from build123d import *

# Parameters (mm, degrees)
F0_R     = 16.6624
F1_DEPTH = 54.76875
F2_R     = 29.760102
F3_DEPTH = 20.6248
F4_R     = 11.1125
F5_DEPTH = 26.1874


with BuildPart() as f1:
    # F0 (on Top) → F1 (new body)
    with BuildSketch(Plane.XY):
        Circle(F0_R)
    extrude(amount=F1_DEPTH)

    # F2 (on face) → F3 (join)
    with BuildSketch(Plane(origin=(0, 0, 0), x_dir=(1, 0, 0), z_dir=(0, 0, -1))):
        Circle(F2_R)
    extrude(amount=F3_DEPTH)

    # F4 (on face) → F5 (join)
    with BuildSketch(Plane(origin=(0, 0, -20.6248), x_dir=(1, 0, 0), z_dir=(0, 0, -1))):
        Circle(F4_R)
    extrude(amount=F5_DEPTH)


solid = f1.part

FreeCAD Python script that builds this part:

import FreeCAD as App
import Part
import Sketcher
Q = App.Units.Quantity

doc = App.newDocument("Part")
body = doc.addObject("PartDesign::Body", "Body")

# Sketch on XY plane
sketch1 = doc.addObject("Sketcher::SketchObject", "Sketch")
body.addObject(sketch1)
sketch1.AttachmentSupport = (doc.XY_Plane, [""])
sketch1.MapMode = "FlatFace"
sketch1.addGeometry(Part.Circle(App.Vector(0, 0, 0), App.Vector(0, 0, 1), 17), False)
sketch1.addConstraint([
    Sketcher.Constraint("Coincident", 0, 3, -1, 1),
    Sketcher.Constraint("Diameter", 0, Q("1.312 in")),
])
pad1 = doc.addObject("PartDesign::Pad", "Pad")
body.addObject(pad1)
pad1.Profile = sketch1
pad1.Length = Q("2.15625 in")

# Sketch on XY plane
sketch2 = doc.addObject("Sketcher::SketchObject", "Sketch001")
body.addObject(sketch2)
sketch2.AttachmentSupport = (doc.XY_Plane, [""])
sketch2.MapMode = "FlatFace"
sketch2.addGeometry(Part.Circle(App.Vector(0, 0, 0), App.Vector(0, 0, 1), 30), False)
sketch2.addConstraint([
    Sketcher.Constraint("Coincident", 0, 3, -1, 1),
    Sketcher.Constraint("Diameter", 0, 59.520204),
])
pad2 = doc.addObject("PartDesign::Pad", "Pad001")
body.addObject(pad2)
pad2.Profile = sketch2
pad2.Length = Q("0.812 in")
pad2.Reversed = True

# Sketch on XY plane
sketch3 = doc.addObject("Sketcher::SketchObject", "Sketch002")
body.addObject(sketch3)
sketch3.AttachmentSupport = (doc.XY_Plane, [""])
sketch3.MapMode = "FlatFace"
sketch3.AttachmentOffset = App.Placement(App.Vector(0, 0, -0.812 * 25.4), App.Rotation())
sketch3.addGeometry(Part.Circle(App.Vector(0, 0, 0), App.Vector(0, 0, 1), 11), False)
sketch3.addConstraint([
    Sketcher.Constraint("Coincident", 0, 3, -1, 1),
    Sketcher.Constraint("Diameter", 0, Q("0.875 in")),
])
pad3 = doc.addObject("PartDesign::Pad", "Pad002")
body.addObject(pad3)
pad3.Profile = sketch3
pad3.Length = Q("1.031 in")
pad3.Reversed = True

doc.recompute()
